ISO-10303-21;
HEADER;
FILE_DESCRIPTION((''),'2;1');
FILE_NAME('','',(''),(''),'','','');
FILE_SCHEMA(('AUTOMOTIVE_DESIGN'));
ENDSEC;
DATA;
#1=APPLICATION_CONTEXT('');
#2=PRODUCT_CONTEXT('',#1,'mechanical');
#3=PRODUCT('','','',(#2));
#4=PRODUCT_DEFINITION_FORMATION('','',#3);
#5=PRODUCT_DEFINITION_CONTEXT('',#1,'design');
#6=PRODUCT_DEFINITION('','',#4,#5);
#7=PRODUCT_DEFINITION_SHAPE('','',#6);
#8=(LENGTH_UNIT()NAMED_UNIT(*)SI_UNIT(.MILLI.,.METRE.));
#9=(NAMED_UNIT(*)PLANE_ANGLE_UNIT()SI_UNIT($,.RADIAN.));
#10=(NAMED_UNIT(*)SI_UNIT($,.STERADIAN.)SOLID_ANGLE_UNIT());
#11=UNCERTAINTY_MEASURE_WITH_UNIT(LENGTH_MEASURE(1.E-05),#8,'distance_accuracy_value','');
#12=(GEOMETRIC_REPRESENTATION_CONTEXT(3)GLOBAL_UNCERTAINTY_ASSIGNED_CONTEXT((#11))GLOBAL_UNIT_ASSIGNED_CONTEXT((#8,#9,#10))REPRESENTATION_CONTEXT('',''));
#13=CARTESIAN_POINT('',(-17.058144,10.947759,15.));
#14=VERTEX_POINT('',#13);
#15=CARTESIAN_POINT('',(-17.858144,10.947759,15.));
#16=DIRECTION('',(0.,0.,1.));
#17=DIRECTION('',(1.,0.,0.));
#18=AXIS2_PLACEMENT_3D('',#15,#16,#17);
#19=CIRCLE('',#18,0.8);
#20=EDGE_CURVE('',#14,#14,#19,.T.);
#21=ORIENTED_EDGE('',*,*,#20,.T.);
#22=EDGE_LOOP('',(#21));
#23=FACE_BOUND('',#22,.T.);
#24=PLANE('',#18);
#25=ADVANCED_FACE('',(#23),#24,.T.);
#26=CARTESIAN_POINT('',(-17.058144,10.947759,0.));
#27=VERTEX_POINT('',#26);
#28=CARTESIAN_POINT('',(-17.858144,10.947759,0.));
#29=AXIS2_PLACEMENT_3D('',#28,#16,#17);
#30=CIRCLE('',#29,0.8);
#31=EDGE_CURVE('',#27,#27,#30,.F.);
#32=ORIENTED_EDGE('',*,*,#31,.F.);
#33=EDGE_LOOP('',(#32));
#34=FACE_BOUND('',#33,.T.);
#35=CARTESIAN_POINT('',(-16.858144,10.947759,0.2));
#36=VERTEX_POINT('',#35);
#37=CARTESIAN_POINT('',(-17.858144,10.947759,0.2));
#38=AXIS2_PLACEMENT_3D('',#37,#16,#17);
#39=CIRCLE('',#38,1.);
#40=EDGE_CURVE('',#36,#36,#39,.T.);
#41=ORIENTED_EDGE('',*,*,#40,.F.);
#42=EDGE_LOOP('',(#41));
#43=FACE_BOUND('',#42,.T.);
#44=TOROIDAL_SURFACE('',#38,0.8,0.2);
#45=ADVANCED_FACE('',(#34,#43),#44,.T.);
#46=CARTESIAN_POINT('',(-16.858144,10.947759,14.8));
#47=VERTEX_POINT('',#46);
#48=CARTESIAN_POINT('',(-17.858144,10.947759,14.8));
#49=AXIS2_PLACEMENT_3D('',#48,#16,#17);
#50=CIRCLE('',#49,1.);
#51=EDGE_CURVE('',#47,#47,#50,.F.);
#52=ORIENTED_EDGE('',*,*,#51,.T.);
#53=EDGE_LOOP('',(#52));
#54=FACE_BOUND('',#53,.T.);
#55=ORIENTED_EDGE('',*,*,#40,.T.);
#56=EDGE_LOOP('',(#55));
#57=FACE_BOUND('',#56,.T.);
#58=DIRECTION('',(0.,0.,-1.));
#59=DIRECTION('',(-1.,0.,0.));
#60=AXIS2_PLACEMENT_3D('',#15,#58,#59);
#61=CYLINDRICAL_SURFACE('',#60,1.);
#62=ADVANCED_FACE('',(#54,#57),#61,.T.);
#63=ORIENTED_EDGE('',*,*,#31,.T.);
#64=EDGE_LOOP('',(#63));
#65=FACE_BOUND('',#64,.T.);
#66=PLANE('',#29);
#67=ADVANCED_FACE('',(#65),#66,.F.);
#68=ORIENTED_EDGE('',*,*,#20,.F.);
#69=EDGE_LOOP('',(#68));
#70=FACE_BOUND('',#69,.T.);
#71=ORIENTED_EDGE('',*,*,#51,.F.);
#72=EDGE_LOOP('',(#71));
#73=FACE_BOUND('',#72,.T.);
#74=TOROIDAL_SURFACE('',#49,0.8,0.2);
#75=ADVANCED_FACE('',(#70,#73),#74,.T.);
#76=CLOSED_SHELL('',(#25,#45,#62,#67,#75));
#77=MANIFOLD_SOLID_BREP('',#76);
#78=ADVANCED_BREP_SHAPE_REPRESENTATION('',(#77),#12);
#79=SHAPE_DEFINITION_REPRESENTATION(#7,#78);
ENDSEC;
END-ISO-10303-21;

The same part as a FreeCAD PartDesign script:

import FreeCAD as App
import Part
import Sketcher
from FreeCAD import Vector
Q = App.Units.Quantity


def edges_at(feature, points):
    """Names of the edges that pass closest to the given points."""
    edges = feature.Shape.Edges
    near = lambda p: min(range(len(edges)), key=lambda i: edges[i].distToShape(Part.Vertex(*p))[0])
    return sorted({f"Edge{near(p) + 1}" for p in points})

doc = App.newDocument("Part")
params = doc.addObject("Spreadsheet::Sheet", "Params")
for row, (alias, value) in enumerate([
    ("sketch1_diameter", "2 mm"),
    ("pad1_length", "15 mm"),
    ("fillet_radius", "0.2 mm"),
], start=1):
    params.set(f"A{row}", alias)
    params.set(f"B{row}", "=" + value)
    params.setAlias(f"B{row}", alias)

body = doc.addObject("PartDesign::Body", "Body")

# Sketch on XY plane
sketch1 = body.newObject("Sketcher::SketchObject", "Sketch")
sketch1.AttachmentSupport = (doc.getObject("XY_Plane"), [""])
sketch1.MapMode = "FlatFace"
sketch1.addGeometry(Part.Circle(Vector(-17.9, 10.9, 0), Vector(0, 0, 1), 1), False)
sketch1.addConstraint([
    Sketcher.Constraint("Diameter", 0, Q("2 mm")),
    Sketcher.Constraint("DistanceY", -1, 1, 0, 3, Q("10.947759 mm")),
    Sketcher.Constraint("DistanceX", 0, 3, -1, 1, Q("17.858144 mm")),
])
sketch1.setExpression("Constraints[0]", "Params.sketch1_diameter")
pad1 = body.newObject("PartDesign::Pad", "Pad")
pad1.Profile = sketch1
pad1.setExpression("Length", "Params.pad1_length")
doc.recompute()

fillet = body.newObject("PartDesign::Fillet", "Fillet")
fillet.Base = (pad1, edges_at(pad1, [(-18.858, 10.948, 0), (-18.858, 10.948, 15)]))
fillet.setExpression("Radius", "Params.fillet_radius")

doc.recompute()
